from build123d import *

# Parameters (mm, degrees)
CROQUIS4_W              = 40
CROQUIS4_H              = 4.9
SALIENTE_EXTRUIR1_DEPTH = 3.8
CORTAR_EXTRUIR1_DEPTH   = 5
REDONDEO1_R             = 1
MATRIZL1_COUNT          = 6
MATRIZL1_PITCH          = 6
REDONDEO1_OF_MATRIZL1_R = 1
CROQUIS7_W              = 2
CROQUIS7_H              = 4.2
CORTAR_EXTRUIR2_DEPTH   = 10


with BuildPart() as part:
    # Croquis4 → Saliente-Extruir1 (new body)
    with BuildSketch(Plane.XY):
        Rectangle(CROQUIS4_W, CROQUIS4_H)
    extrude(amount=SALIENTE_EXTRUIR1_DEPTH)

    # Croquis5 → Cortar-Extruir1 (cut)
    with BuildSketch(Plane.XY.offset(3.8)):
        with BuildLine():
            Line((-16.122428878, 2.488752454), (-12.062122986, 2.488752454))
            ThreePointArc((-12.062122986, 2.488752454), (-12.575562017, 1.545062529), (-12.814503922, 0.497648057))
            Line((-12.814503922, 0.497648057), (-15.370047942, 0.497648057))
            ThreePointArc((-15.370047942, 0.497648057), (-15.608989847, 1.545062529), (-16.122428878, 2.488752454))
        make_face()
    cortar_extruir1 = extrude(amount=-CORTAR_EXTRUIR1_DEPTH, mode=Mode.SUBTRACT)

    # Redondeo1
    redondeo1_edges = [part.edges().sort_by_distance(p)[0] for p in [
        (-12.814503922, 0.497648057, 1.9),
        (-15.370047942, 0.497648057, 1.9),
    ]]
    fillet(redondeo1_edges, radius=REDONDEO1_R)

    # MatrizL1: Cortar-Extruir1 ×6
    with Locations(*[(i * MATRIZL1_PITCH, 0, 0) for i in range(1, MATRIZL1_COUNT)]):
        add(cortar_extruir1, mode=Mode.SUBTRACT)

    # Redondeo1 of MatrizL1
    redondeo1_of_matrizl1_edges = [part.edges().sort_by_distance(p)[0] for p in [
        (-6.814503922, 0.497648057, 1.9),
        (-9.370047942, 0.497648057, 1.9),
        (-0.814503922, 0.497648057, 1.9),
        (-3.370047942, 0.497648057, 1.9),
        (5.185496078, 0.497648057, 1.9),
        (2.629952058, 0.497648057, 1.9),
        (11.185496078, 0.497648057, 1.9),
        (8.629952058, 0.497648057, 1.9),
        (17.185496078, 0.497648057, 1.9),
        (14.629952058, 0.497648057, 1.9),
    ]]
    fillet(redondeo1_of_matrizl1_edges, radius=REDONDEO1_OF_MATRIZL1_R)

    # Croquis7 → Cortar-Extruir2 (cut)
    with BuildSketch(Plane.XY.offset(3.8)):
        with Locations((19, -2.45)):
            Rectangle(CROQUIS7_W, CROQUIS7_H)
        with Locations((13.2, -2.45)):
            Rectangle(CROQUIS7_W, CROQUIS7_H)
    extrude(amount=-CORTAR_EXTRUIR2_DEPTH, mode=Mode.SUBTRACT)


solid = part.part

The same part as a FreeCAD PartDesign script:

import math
import FreeCAD as App
import Part
import Sketcher
Q = App.Units.Quantity


def edges_at(feature, points):
    """Names of the edges that pass closest to the given points."""
    edges = feature.Shape.Edges
    near = lambda p: min(range(len(edges)), key=lambda i: edges[i].distToShape(Part.Vertex(*p))[0])
    return sorted({f"Edge{near(p) + 1}" for p in points})


def add_polygon(sketch, points):
    """Adds a closed chain of lines whose ends are joined by coincident constraints."""
    first, n = sketch.GeometryCount, len(points)
    for a, b in zip(points, points[1:] + points[:1]):
        sketch.addGeometry(Part.LineSegment(App.Vector(*a, 0), App.Vector(*b, 0)), False)
    for i in range(n):
        sketch.addConstraint(Sketcher.Constraint("Coincident", first + i, 2, first + (i + 1) % n, 1))

doc = App.newDocument("Part")
body = doc.addObject("PartDesign::Body", "Body")

sketch1 = body.newObject("Sketcher::SketchObject", "Sketch")
sketch1.AttachmentSupport = (doc.getObject("XY_Plane"), [""])
sketch1.MapMode = "FlatFace"
add_polygon(sketch1, [(-20, 2.5), (-20, -2.5), (20, -2.5), (20, 2.5)])
sketch1.addConstraint(Sketcher.Constraint("Vertical", 0))
sketch1.addConstraint(Sketcher.Constraint("Horizontal", 1))
sketch1.addConstraint(Sketcher.Constraint("Vertical", 2))
sketch1.addConstraint(Sketcher.Constraint("Horizontal", 3))
sketch1.addConstraint(Sketcher.Constraint("Symmetric", 0, 2, 2, 2, -1, 1))
sketch1.addConstraint(Sketcher.Constraint("DistanceX", 1, 1, 1, 2, Q("40 mm")))
sketch1.addConstraint(Sketcher.Constraint("DistanceY", 0, 2, 0, 1, Q("4.9 mm")))
pad1 = body.newObject("PartDesign::Pad", "Pad")
pad1.Profile = sketch1
pad1.Length = 3.8

sketch2 = body.newObject("Sketcher::SketchObject", "Sketch001")
sketch2.AttachmentSupport = (doc.getObject("XY_Plane"), [""])
sketch2.MapMode = "FlatFace"
sketch2.AttachmentOffset = App.Placement(App.Vector(0, 0, 3.8), App.Rotation())
sketch2.addGeometry(Part.LineSegment(App.Vector(-12.1, 2.5, 0), App.Vector(-16.1, 2.5, 0)), False)
sketch2.addGeometry(Part.ArcOfCircle(Part.Circle(App.Vector(-19.3, 0.2, 0), App.Vector(0, 0, 1), 3.9), math.radians(5), math.radians(36)), False)
sketch2.addGeometry(Part.LineSegment(App.Vector(-15.4, 0.5, 0), App.Vector(-12.8, 0.5, 0)), False)
sketch2.addGeometry(Part.ArcOfCircle(Part.Circle(App.Vector(-8.9, 0.2, 0), App.Vector(0, 0, 1), 3.9), math.radians(144), math.radians(175)), False)
sketch2.addConstraint(Sketcher.Constraint("Coincident", 0, 2, 1, 2))
sketch2.addConstraint(Sketcher.Constraint("Coincident", 1, 1, 2, 1))
sketch2.addConstraint(Sketcher.Constraint("Coincident", 2, 2, 3, 2))
sketch2.addConstraint(Sketcher.Constraint("Coincident", 3, 1, 0, 1))
sketch2.addConstraint(Sketcher.Constraint("Horizontal", 0))
sketch2.addConstraint(Sketcher.Constraint("Horizontal", 2))
sketch2.addConstraint(Sketcher.Constraint("Equal", 1, 3))
sketch2.addConstraint(Sketcher.Constraint("Horizontal", 1, 3, 3, 3))
sketch2.addConstraint(Sketcher.Constraint("Radius", 1, Q("3.933232 mm")))
sketch2.addConstraint(Sketcher.Constraint("DistanceX", 1, 1, 3, 3, Q("6.473801 mm")))
sketch2.addConstraint(Sketcher.Constraint("DistanceX", 0, 2, 0, 1, Q("4.060306 mm")))
sketch2.addConstraint(Sketcher.Constraint("DistanceX", 2, 1, 2, 2, Q("2.555544 mm")))
sketch2.addConstraint(Sketcher.Constraint("DistanceX", 0, 2, -1, 1, Q("16.122429 mm")))
sketch2.addConstraint(Sketcher.Constraint("DistanceY", -1, 1, 1, 1, Q("0.497648 mm")))
pocket1 = body.newObject("PartDesign::Pocket", "Pocket")
pocket1.Profile = sketch2
pocket1.Length = 5
doc.recompute()

fillet = body.newObject("PartDesign::Fillet", "Fillet")
fillet.Base = (pocket1, edges_at(pocket1, [(-12.815, 0.498, 1.9), (-15.37, 0.498, 1.9)]))
fillet.Radius = 1
doc.recompute()

linearpattern = body.newObject("PartDesign::LinearPattern", "LinearPattern")
linearpattern.Originals = [pocket1]
linearpattern.Direction = (doc.getObject("X_Axis"), [""])
linearpattern.Mode = "offset"
linearpattern.Offset = 6
linearpattern.Occurrences = 6
body.Tip = linearpattern
doc.recompute()

fillet2 = body.newObject("PartDesign::Fillet", "Fillet001")
fillet2.Base = (linearpattern, edges_at(linearpattern, [
    (-6.815, 0.498, 1.9),
    (-9.37, 0.498, 1.9),
    (-0.815, 0.498, 1.9),
    (-3.37, 0.498, 1.9),
    (5.185, 0.498, 1.9),
    (2.63, 0.498, 1.9),
    (11.185, 0.498, 1.9),
    (8.63, 0.498, 1.9),
    (17.185, 0.498, 1.9),
    (14.63, 0.498, 1.9),
]))
fillet2.Radius = 1

sketch3 = body.newObject("Sketcher::SketchObject", "Sketch002")
sketch3.AttachmentSupport = (doc.getObject("XY_Plane"), [""])
sketch3.MapMode = "FlatFace"
sketch3.AttachmentOffset = App.Placement(App.Vector(0, 0, 3.8), App.Rotation())
add_polygon(sketch3, [(18, -0.3), (18, -4.5), (20, -4.5), (20, -0.3)])
add_polygon(sketch3, [(12.2, -0.3), (12.2, -4.5), (14.2, -4.5), (14.2, -0.3)])
sketch3.addConstraint(Sketcher.Constraint("Vertical", 0))
sketch3.addConstraint(Sketcher.Constraint("Horizontal", 1))
sketch3.addConstraint(Sketcher.Constraint("Vertical", 2))
sketch3.addConstraint(Sketcher.Constraint("Horizontal", 3))
sketch3.addConstraint(Sketcher.Constraint("Vertical", 4))
sketch3.addConstraint(Sketcher.Constraint("Horizontal", 5))
sketch3.addConstraint(Sketcher.Constraint("Vertical", 6))
sketch3.addConstraint(Sketcher.Constraint("Horizontal", 7))
sketch3.addConstraint(Sketcher.Constraint("Horizontal", 1, 2, 4, 2))
sketch3.addConstraint(Sketcher.Constraint("Horizontal", 3, 2, 6, 2))
sketch3.addConstraint(Sketcher.Constraint("Equal", 3, 5))
sketch3.addConstraint(Sketcher.Constraint("DistanceX", 1, 1, 1, 2, Q("2 mm")))
sketch3.addConstraint(Sketcher.Constraint("DistanceY", 0, 2, 0, 1, Q("4.2 mm")))
sketch3.addConstraint(Sketcher.Constraint("DistanceX", -1, 1, 0, 2, Q("18 mm")))
sketch3.addConstraint(Sketcher.Constraint("DistanceX", -1, 1, 4, 2, Q("12.2 mm")))
sketch3.addConstraint(Sketcher.Constraint("DistanceY", 0, 2, -1, 1, Q("4.55 mm")))
pocket2 = body.newObject("PartDesign::Pocket", "Pocket001")
pocket2.Profile = sketch3
pocket2.Length = 10

doc.recompute()
